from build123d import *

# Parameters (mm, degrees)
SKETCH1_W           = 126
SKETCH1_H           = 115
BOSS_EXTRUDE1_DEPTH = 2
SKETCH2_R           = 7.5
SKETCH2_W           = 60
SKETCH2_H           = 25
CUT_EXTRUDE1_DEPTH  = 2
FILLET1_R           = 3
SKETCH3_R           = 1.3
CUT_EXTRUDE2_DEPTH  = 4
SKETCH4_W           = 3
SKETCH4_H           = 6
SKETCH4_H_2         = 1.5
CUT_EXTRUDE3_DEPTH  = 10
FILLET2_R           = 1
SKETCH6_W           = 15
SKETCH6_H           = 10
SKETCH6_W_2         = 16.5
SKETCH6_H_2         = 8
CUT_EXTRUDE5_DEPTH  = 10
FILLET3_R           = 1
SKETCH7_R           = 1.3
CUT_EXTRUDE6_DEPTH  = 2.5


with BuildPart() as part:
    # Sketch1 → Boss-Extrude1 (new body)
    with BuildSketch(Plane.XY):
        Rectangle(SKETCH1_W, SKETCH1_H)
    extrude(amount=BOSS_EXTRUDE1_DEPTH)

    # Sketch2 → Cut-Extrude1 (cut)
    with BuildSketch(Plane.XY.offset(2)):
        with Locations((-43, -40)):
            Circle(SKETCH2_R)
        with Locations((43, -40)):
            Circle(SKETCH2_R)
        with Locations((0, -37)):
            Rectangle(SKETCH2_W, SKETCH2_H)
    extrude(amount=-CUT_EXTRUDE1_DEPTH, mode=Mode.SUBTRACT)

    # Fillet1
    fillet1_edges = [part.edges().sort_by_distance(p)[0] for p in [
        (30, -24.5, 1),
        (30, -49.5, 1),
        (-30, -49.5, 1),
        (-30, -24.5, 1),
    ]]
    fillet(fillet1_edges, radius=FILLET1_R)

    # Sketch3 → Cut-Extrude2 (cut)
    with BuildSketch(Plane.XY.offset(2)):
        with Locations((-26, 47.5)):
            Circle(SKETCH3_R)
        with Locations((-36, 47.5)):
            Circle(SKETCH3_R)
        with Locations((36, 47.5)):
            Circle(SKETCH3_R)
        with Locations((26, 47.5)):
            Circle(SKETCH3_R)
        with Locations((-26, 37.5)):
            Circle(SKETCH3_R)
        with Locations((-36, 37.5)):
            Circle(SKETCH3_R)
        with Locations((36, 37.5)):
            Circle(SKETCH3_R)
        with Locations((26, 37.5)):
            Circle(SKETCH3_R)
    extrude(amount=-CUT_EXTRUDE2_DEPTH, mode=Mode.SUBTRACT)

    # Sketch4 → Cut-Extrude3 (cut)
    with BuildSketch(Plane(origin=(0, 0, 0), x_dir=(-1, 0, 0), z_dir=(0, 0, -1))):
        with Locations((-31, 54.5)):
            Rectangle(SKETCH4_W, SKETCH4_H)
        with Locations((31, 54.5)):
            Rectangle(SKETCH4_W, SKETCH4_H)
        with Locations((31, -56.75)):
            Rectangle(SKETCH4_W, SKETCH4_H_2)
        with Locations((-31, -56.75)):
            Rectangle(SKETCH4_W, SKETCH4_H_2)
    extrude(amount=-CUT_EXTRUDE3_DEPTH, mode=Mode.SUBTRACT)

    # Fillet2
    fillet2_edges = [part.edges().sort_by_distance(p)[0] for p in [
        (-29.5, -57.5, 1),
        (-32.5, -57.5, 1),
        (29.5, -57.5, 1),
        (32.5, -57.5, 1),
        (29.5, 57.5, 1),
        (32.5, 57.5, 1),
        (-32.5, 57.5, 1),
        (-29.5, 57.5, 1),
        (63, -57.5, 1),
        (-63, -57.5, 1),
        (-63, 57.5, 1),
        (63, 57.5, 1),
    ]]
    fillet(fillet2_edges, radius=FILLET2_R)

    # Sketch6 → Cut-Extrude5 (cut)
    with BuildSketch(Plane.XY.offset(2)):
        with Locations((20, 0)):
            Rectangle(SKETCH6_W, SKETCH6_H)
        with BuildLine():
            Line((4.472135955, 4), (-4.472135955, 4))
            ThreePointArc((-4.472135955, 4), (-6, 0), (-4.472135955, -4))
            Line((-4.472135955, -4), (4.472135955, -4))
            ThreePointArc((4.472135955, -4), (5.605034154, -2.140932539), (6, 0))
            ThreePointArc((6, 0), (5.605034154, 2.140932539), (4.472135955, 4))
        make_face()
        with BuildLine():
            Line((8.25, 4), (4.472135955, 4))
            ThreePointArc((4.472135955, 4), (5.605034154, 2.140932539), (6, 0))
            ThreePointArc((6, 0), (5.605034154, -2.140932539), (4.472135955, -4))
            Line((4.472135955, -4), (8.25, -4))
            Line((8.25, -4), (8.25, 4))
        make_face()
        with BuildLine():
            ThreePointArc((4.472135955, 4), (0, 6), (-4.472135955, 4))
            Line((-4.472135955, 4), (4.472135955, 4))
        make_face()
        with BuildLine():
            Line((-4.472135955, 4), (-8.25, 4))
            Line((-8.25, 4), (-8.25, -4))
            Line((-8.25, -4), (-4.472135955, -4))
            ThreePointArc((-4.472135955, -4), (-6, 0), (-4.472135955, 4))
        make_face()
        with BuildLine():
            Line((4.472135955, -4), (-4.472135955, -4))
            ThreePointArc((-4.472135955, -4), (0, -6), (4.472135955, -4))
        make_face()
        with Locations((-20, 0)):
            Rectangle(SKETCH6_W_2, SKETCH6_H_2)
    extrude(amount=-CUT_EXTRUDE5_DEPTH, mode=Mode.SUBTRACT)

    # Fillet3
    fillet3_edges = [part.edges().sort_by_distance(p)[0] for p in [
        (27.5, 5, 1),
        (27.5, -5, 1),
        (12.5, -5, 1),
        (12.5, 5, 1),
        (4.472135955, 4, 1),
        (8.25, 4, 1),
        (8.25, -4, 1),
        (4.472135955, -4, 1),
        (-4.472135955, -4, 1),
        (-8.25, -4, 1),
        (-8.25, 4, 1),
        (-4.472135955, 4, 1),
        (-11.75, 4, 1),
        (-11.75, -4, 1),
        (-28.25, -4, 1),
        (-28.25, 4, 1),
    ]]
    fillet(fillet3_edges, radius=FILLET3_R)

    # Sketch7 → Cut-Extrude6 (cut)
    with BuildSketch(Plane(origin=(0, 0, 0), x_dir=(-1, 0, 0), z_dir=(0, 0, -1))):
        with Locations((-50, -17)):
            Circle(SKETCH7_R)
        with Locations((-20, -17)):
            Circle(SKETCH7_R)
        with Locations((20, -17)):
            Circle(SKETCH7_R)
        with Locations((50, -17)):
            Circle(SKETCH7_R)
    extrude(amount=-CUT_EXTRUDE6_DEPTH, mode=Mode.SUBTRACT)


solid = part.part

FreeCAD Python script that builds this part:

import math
import FreeCAD as App
import Part
import Sketcher
from FreeCAD import Vector
Q = App.Units.Quantity


def edges_at(feature, points):
    """Names of the edges that pass closest to the given points."""
    edges = feature.Shape.Edges
    near = lambda p: min(range(len(edges)), key=lambda i: edges[i].distToShape(Part.Vertex(*p))[0])
    return sorted({f"Edge{near(p) + 1}" for p in points})


def add_polygon(sketch, points):
    """Adds a closed chain of lines whose ends are joined by coincident constraints."""
    first, n = sketch.GeometryCount, len(points)
    for a, b in zip(points, points[1:] + points[:1]):
        sketch.addGeometry(Part.LineSegment(App.Vector(*a, 0), App.Vector(*b, 0)), False)
    for i in range(n):
        sketch.addConstraint(Sketcher.Constraint("Coincident", first + i, 2, first + (i + 1) % n, 1))

doc = App.newDocument("Part")
params = doc.addObject("Spreadsheet::Sheet", "Params")
for row, (alias, value) in enumerate([
    ("sketch1_width", "126 mm"),
    ("sketch1_height", "115 mm"),
    ("pad1_length", "2 mm"),
    ("sketch2_diameter", "15 mm"),
    ("sketch2_width", "60 mm"),
    ("sketch2_height", "25 mm"),
    ("pocket1_length", "2 mm"),
    ("fillet_radius", "3 mm"),
    ("sketch3_diameter", "2.6 mm"),
    ("pocket2_length", "4 mm"),
    ("sketch4_width", "3 mm"),
    ("sketch4_height", "6 mm"),
    ("sketch4_height2", "1.5 mm"),
    ("pocket3_length", "10 mm"),
    ("fillet2_radius", "1 mm"),
    ("sketch5_radius", "6 mm"),
    ("sketch5_width", "15 mm"),
    ("sketch5_height", "10 mm"),
    ("sketch5_height2", "8 mm"),
    ("sketch5_width2", "16.5 mm"),
    ("pocket4_length", "10 mm"),
    ("fillet3_radius", "1 mm"),
    ("sketch6_diameter", "2.6 mm"),
    ("pocket5_length", "2.5 mm"),
], start=1):
    params.set(f"A{row}", alias)
    params.set(f"B{row}", "=" + value)
    params.setAlias(f"B{row}", alias)

body = doc.addObject("PartDesign::Body", "Body")

# Sketch on XY plane
sketch1 = body.newObject("Sketcher::SketchObject", "Sketch")
sketch1.AttachmentSupport = (doc.getObject("XY_Plane"), [""])
sketch1.MapMode = "FlatFace"
add_polygon(sketch1, [(-63, 57.5), (-63, -57.5), (63, -57.5), (63, 57.5)])  # lines 0-3
sketch1.addConstraint([
    Sketcher.Constraint("Vertical", 0),
    Sketcher.Constraint("Horizontal", 1),
    Sketcher.Constraint("Vertical", 2),
    Sketcher.Constraint("Horizontal", 3),
    Sketcher.Constraint("Symmetric", 0, 2, 2, 2, -1, 1),
    Sketcher.Constraint("DistanceX", 1, 1, 1, 2, Q("126 mm")),
    Sketcher.Constraint("DistanceY", 0, 2, 0, 1, Q("115 mm")),
])
sketch1.setExpression("Constraints[9]", "Params.sketch1_width")
sketch1.setExpression("Constraints[10]", "Params.sketch1_height")
pad1 = body.newObject("PartDesign::Pad", "Pad")
pad1.Profile = sketch1
pad1.setExpression("Length", "Params.pad1_length")

# Sketch on XY plane
sketch2 = body.newObject("Sketcher::SketchObject", "Sketch001")
sketch2.AttachmentSupport = (doc.getObject("XY_Plane"), [""])
sketch2.MapMode = "FlatFace"
sketch2.AttachmentOffset = App.Placement(Vector(0, 0, 2), App.Rotation())
sketch2.addGeometry(Part.Circle(Vector(-43, -40, 0), Vector(0, 0, 1), 7.5), False)  # 0
sketch2.addGeometry(Part.Circle(Vector(43, -40, 0), Vector(0, 0, 1), 7.5), False)  # 1
add_polygon(sketch2, [(-30, -24.5), (-30, -49.5), (30, -49.5), (30, -24.5)])  # lines 2-5
sketch2.addConstraint([
    Sketcher.Constraint("Vertical", 2),
    Sketcher.Constraint("Horizontal", 3),
    Sketcher.Constraint("Vertical", 4),
    Sketcher.Constraint("Horizontal", 5),
    Sketcher.Constraint("Equal", 0, 1),
    Sketcher.Constraint("Symmetric", 0, 3, 1, 3, -2),
    Sketcher.Constraint("Diameter", 0, Q("15 mm")),
    Sketcher.Constraint("DistanceX", 3, 1, 3, 2, Q("60 mm")),
    Sketcher.Constraint("DistanceY", 2, 2, 2, 1, Q("25 mm")),
    Sketcher.Constraint("DistanceX", 0, 3, -1, 1, Q("43 mm")),
    Sketcher.Constraint("DistanceY", 0, 3, -1, 1, Q("40 mm")),
    Sketcher.Constraint("DistanceX", 2, 2, -1, 1, Q("30 mm")),
    Sketcher.Constraint("DistanceY", 2, 2, -1, 1, Q("49.5 mm")),
])
sketch2.setExpression("Constraints[10]", "Params.sketch2_diameter")
sketch2.setExpression("Constraints[11]", "Params.sketch2_width")
sketch2.setExpression("Constraints[12]", "Params.sketch2_height")
pocket1 = body.newObject("PartDesign::Pocket", "Pocket")
pocket1.Profile = sketch2
pocket1.setExpression("Length", "Params.pocket1_length")
doc.recompute()

fillet = body.newObject("PartDesign::Fillet", "Fillet")
fillet.Base = (pocket1, edges_at(pocket1, [
    (30, -24.5, 1),
    (30, -49.5, 1),
    (-30, -49.5, 1),
    (-30, -24.5, 1),
]))
fillet.setExpression("Radius", "Params.fillet_radius")

# Sketch on XY plane
sketch3 = body.newObject("Sketcher::SketchObject", "Sketch002")
sketch3.AttachmentSupport = (doc.getObject("XY_Plane"), [""])
sketch3.MapMode = "FlatFace"
sketch3.AttachmentOffset = App.Placement(Vector(0, 0, 2), App.Rotation())
sketch3.addGeometry([
    Part.Circle(Vector(-26, 47.5, 0), Vector(0, 0, 1), 1.3),  # 0
    Part.Circle(Vector(-36, 47.5, 0), Vector(0, 0, 1), 1.3),  # 1
    Part.Circle(Vector(36, 47.5, 0), Vector(0, 0, 1), 1.3),  # 2
    Part.Circle(Vector(26, 47.5, 0), Vector(0, 0, 1), 1.3),  # 3
    Part.Circle(Vector(-26, 37.5, 0), Vector(0, 0, 1), 1.3),  # 4
    Part.Circle(Vector(-36, 37.5, 0), Vector(0, 0, 1), 1.3),  # 5
    Part.Circle(Vector(36, 37.5, 0), Vector(0, 0, 1), 1.3),  # 6
    Part.Circle(Vector(26, 37.5, 0), Vector(0, 0, 1), 1.3),  # 7
], False)
sketch3.addConstraint([
    Sketcher.Constraint("Equal", 0, 1),
    Sketcher.Constraint("Equal", 1, 2),
    Sketcher.Constraint("Equal", 2, 3),
    Sketcher.Constraint("Equal", 3, 4),
    Sketcher.Constraint("Equal", 4, 5),
    Sketcher.Constraint("Equal", 5, 6),
    Sketcher.Constraint("Equal", 6, 7),
    Sketcher.Constraint("Symmetric", 1, 3, 2, 3, -2),
    Sketcher.Constraint("Symmetric", 0, 3, 3, 3, -2),
    Sketcher.Constraint("Symmetric", 5, 3, 6, 3, -2),
    Sketcher.Constraint("Symmetric", 4, 3, 7, 3, -2),
    Sketcher.Constraint("Horizontal", 0, 3, 1, 3),
    Sketcher.Constraint("Horizontal", 4, 3, 5, 3),
    Sketcher.Constraint("Vertical", 0, 3, 4, 3),
    Sketcher.Constraint("Vertical", 1, 3, 5, 3),
    Sketcher.Constraint("Diameter", 0, Q("2.6 mm")),
    Sketcher.Constraint("DistanceX", 0, 3, -1, 1, Q("26 mm")),
    Sketcher.Constraint("DistanceX", 1, 3, -1, 1, Q("36 mm")),
    Sketcher.Constraint("DistanceY", 4, 3, 0, 3, Q("10 mm")),
    Sketcher.Constraint("DistanceY", -1, 1, 0, 3, Q("47.5 mm")),
])
sketch3.setExpression("Constraints[15]", "Params.sketch3_diameter")
pocket2 = body.newObject("PartDesign::Pocket", "Pocket001")
pocket2.Profile = sketch3
pocket2.setExpression("Length", "Params.pocket2_length")

# Sketch on XY plane
sketch4 = body.newObject("Sketcher::SketchObject", "Sketch003")
sketch4.AttachmentSupport = (doc.getObject("XY_Plane"), [""])
sketch4.MapMode = "FlatFace"
add_polygon(sketch4, [(32.5, 57.5), (32.5, 51.5), (29.5, 51.5), (29.5, 57.5)])  # lines 0-3
add_polygon(sketch4, [(-29.5, 57.5), (-29.5, 51.5), (-32.5, 51.5), (-32.5, 57.5)])  # lines 4-7
add_polygon(sketch4, [(-29.5, -56), (-29.5, -57.5), (-32.5, -57.5), (-32.5, -56)])  # lines 8-11
add_polygon(sketch4, [(32.5, -56), (32.5, -57.5), (29.5, -57.5), (29.5, -56)])  # lines 12-15
sketch4.addConstraint([
    Sketcher.Constraint("Vertical", 0),
    Sketcher.Constraint("Horizontal", 1),
    Sketcher.Constraint("Vertical", 2),
    Sketcher.Constraint("Horizontal", 3),
    Sketcher.Constraint("Vertical", 4),
    Sketcher.Constraint("Horizontal", 5),
    Sketcher.Constraint("Vertical", 6),
    Sketcher.Constraint("Horizontal", 7),
    Sketcher.Constraint("Vertical", 8),
    Sketcher.Constraint("Horizontal", 9),
    Sketcher.Constraint("Vertical", 10),
    Sketcher.Constraint("Horizontal", 11),
    Sketcher.Constraint("Vertical", 12),
    Sketcher.Constraint("Horizontal", 13),
    Sketcher.Constraint("Vertical", 14),
    Sketcher.Constraint("Horizontal", 15),
    Sketcher.Constraint("Symmetric", 2, 2, 8, 2, -1, 1),
    Sketcher.Constraint("Symmetric", 6, 2, 12, 2, -1, 1),
    Sketcher.Constraint("Symmetric", 1, 2, 4, 2, -2),
    Sketcher.Constraint("Symmetric", 3, 2, 6, 2, -2),
    Sketcher.Constraint("Symmetric", 11, 2, 14, 2, -2),
    Sketcher.Constraint("Vertical", 6, 2, 9, 2),
    Sketcher.Constraint("DistanceX", 1, 2, 1, 1, Q("3 mm")),
    Sketcher.Constraint("DistanceY", 0, 2, 0, 1, Q("6 mm")),
    Sketcher.Constraint("DistanceY", 8, 2, 8, 1, Q("1.5 mm")),
    Sketcher.Constraint("DistanceY", 10, 2, -1, 1, Q("56 mm")),
    Sketcher.Constraint("DistanceX", 4, 2, 1, 2, Q("59 mm")),
])
sketch4.setExpression("Constraints[38]", "Params.sketch4_width")
sketch4.setExpression("Constraints[39]", "Params.sketch4_height")
sketch4.setExpression("Constraints[40]", "Params.sketch4_height2")
pocket3 = body.newObject("PartDesign::Pocket", "Pocket002")
pocket3.Profile = sketch4
pocket3.setExpression("Length", "Params.pocket3_length")
pocket3.Reversed = True
doc.recompute()

fillet2 = body.newObject("PartDesign::Fillet", "Fillet001")
fillet2.Base = (pocket3, edges_at(pocket3, [
    (-29.5, -57.5, 1),
    (-32.5, -57.5, 1),
    (29.5, -57.5, 1),
    (32.5, -57.5, 1),
    (29.5, 57.5, 1),
    (32.5, 57.5, 1),
    (-32.5, 57.5, 1),
    (-29.5, 57.5, 1),
    (63, -57.5, 1),
    (-63, -57.5, 1),
    (-63, 57.5, 1),
    (63, 57.5, 1),
]))
fillet2.setExpression("Radius", "Params.fillet2_radius")

# Sketch on XY plane
sketch5 = body.newObject("Sketcher::SketchObject", "Sketch004")
sketch5.AttachmentSupport = (doc.getObject("XY_Plane"), [""])
sketch5.MapMode = "FlatFace"
sketch5.AttachmentOffset = App.Placement(Vector(0, 0, 2), App.Rotation())
add_polygon(sketch5, [(12.5, 5), (12.5, -5), (27.5, -5), (27.5, 5)])  # lines 0-3
sketch5.addGeometry(Part.LineSegment(Vector(8.25, -4, 0), Vector(8.25, 4, 0)), False)  # 4
sketch5.addGeometry(Part.LineSegment(Vector(8.25, 4, 0), Vector(4.472136, 4, 0)), False)  # 5
sketch5.addGeometry(Part.ArcOfCircle(Part.Circle(Vector(0, 0, 0), Vector(0, 0, 1), 6), math.radians(41.810315), math.radians(138.189685)), False)  # 6
sketch5.addGeometry(Part.LineSegment(Vector(-4.472136, 4, 0), Vector(-8.25, 4, 0)), False)  # 7
sketch5.addGeometry(Part.LineSegment(Vector(-8.25, 4, 0), Vector(-8.25, -4, 0)), False)  # 8
sketch5.addGeometry(Part.LineSegment(Vector(-8.25, -4, 0), Vector(-4.472136, -4, 0)), False)  # 9
sketch5.addGeometry(Part.ArcOfCircle(Part.Circle(Vector(0, 0, 0), Vector(0, 0, 1), 6), math.radians(-138.189685), math.radians(-41.810315)), False)  # 10
sketch5.addGeometry(Part.LineSegment(Vector(4.472136, -4, 0), Vector(8.25, -4, 0)), False)  # 11
add_polygon(sketch5, [(-28.25, 4), (-28.25, -4), (-11.75, -4), (-11.75, 4)])  # lines 12-15
sketch5.addConstraint([
    Sketcher.Constraint("Coincident", 4, 2, 5, 1),
    Sketcher.Constraint("Coincident", 5, 2, 6, 1),
    Sketcher.Constraint("Coincident", 6, 2, 7, 1),
    Sketcher.Constraint("Coincident", 7, 2, 8, 1),
    Sketcher.Constraint("Coincident", 8, 2, 9, 1),
    Sketcher.Constraint("Coincident", 9, 2, 10, 1),
    Sketcher.Constraint("Coincident", 10, 2, 11, 1),
    Sketcher.Constraint("Coincident", 11, 2, 4, 1),
    Sketcher.Constraint("Vertical", 0),
    Sketcher.Constraint("Horizontal", 1),
    Sketcher.Constraint("Vertical", 2),
    Sketcher.Constraint("Horizontal", 3),
    Sketcher.Constraint("Vertical", 4),
    Sketcher.Constraint("Horizontal", 5),
    Sketcher.Constraint("Horizontal", 7),
    Sketcher.Constraint("Vertical", 8),
    Sketcher.Constraint("Horizontal", 9),
    Sketcher.Constraint("Horizontal", 11),
    Sketcher.Constraint("Vertical", 12),
    Sketcher.Constraint("Horizontal", 13),
    Sketcher.Constraint("Vertical", 14),
    Sketcher.Constraint("Horizontal", 15),
    Sketcher.Constraint("Coincident", 6, 3, -1, 1),
    Sketcher.Constraint("Coincident", 10, 3, -1, 1),
    Sketcher.Constraint("Equal", 6, 10),
    Sketcher.Constraint("Symmetric", 4, 2, 8, 2, -1, 1),
    Sketcher.Constraint("Horizontal", 5, 2, 6, 2),
    Sketcher.Constraint("Horizontal", 9, 2, 10, 2),
    Sketcher.Constraint("Horizontal", 11, 2, 12, 2),
    Sketcher.Constraint("Horizontal", 7, 2, 14, 2),
    Sketcher.Constraint("Radius", 6, Q("6 mm")),
    Sketcher.Constraint("DistanceX", 1, 1, 1, 2, Q("15 mm")),
    Sketcher.Constraint("DistanceY", 0, 2, 0, 1, Q("10 mm")),
    Sketcher.Constraint("DistanceY", 4, 1, 4, 2, Q("8 mm")),
    Sketcher.Constraint("DistanceX", 13, 1, 13, 2, Q("16.5 mm")),
    Sketcher.Constraint("DistanceY", 0, 2, -1, 1, Q("5 mm")),
    Sketcher.Constraint("DistanceX", 12, 2, 8, 2, Q("20 mm")),
    Sketcher.Constraint("DistanceX", -1, 1, 0, 2, Q("12.5 mm")),
    Sketcher.Constraint("DistanceX", 7, 2, 4, 2, Q("16.5 mm")),
])
sketch5.setExpression("Constraints[38]", "Params.sketch5_radius")
sketch5.setExpression("Constraints[39]", "Params.sketch5_width")
sketch5.setExpression("Constraints[40]", "Params.sketch5_height")
sketch5.setExpression("Constraints[41]", "Params.sketch5_height2")
sketch5.setExpression("Constraints[42]", "Params.sketch5_width2")
pocket4 = body.newObject("PartDesign::Pocket", "Pocket003")
pocket4.Profile = sketch5
pocket4.setExpression("Length", "Params.pocket4_length")
doc.recompute()

fillet3 = body.newObject("PartDesign::Fillet", "Fillet002")
fillet3.Base = (pocket4, edges_at(pocket4, [
    (27.5, 5, 1),
    (27.5, -5, 1),
    (12.5, -5, 1),
    (12.5, 5, 1),
    (4.472, 4, 1),
    (8.25, 4, 1),
    (8.25, -4, 1),
    (4.472, -4, 1),
    (-4.472, -4, 1),
    (-8.25, -4, 1),
    (-8.25, 4, 1),
    (-4.472, 4, 1),
    (-11.75, 4, 1),
    (-11.75, -4, 1),
    (-28.25, -4, 1),
    (-28.25, 4, 1),
]))
fillet3.setExpression("Radius", "Params.fillet3_radius")

# Sketch on XY plane
sketch6 = body.newObject("Sketcher::SketchObject", "Sketch005")
sketch6.AttachmentSupport = (doc.getObject("XY_Plane"), [""])
sketch6.MapMode = "FlatFace"
sketch6.addGeometry([
    Part.Circle(Vector(50, -17, 0), Vector(0, 0, 1), 1.3),
    Part.Circle(Vector(20, -17, 0), Vector(0, 0, 1), 1.3),
    Part.Circle(Vector(-20, -17, 0), Vector(0, 0, 1), 1.3),
    Part.Circle(Vector(-50, -17, 0), Vector(0, 0, 1), 1.3),
], False)
sketch6.addConstraint([
    Sketcher.Constraint("Equal", 0, 1),
    Sketcher.Constraint("Equal", 1, 2),
    Sketcher.Constraint("Equal", 2, 3),
    Sketcher.Constraint("Symmetric", 1, 3, 2, 3, -2),
    Sketcher.Constraint("Symmetric", 0, 3, 3, 3, -2),
    Sketcher.Constraint("Horizontal", 0, 3, 1, 3),
    Sketcher.Constraint("Diameter", 0, Q("2.6 mm")),
    Sketcher.Constraint("DistanceX", -1, 1, 0, 3, Q("50 mm")),
    Sketcher.Constraint("DistanceY", 0, 3, -1, 1, Q("17 mm")),
    Sketcher.Constraint("DistanceX", -1, 1, 1, 3, Q("20 mm")),
])
sketch6.setExpression("Constraints[6]", "Params.sketch6_diameter")
pocket5 = body.newObject("PartDesign::Pocket", "Pocket004")
pocket5.Profile = sketch6
pocket5.setExpression("Length", "Params.pocket5_length")
pocket5.Reversed = True

doc.recompute()
